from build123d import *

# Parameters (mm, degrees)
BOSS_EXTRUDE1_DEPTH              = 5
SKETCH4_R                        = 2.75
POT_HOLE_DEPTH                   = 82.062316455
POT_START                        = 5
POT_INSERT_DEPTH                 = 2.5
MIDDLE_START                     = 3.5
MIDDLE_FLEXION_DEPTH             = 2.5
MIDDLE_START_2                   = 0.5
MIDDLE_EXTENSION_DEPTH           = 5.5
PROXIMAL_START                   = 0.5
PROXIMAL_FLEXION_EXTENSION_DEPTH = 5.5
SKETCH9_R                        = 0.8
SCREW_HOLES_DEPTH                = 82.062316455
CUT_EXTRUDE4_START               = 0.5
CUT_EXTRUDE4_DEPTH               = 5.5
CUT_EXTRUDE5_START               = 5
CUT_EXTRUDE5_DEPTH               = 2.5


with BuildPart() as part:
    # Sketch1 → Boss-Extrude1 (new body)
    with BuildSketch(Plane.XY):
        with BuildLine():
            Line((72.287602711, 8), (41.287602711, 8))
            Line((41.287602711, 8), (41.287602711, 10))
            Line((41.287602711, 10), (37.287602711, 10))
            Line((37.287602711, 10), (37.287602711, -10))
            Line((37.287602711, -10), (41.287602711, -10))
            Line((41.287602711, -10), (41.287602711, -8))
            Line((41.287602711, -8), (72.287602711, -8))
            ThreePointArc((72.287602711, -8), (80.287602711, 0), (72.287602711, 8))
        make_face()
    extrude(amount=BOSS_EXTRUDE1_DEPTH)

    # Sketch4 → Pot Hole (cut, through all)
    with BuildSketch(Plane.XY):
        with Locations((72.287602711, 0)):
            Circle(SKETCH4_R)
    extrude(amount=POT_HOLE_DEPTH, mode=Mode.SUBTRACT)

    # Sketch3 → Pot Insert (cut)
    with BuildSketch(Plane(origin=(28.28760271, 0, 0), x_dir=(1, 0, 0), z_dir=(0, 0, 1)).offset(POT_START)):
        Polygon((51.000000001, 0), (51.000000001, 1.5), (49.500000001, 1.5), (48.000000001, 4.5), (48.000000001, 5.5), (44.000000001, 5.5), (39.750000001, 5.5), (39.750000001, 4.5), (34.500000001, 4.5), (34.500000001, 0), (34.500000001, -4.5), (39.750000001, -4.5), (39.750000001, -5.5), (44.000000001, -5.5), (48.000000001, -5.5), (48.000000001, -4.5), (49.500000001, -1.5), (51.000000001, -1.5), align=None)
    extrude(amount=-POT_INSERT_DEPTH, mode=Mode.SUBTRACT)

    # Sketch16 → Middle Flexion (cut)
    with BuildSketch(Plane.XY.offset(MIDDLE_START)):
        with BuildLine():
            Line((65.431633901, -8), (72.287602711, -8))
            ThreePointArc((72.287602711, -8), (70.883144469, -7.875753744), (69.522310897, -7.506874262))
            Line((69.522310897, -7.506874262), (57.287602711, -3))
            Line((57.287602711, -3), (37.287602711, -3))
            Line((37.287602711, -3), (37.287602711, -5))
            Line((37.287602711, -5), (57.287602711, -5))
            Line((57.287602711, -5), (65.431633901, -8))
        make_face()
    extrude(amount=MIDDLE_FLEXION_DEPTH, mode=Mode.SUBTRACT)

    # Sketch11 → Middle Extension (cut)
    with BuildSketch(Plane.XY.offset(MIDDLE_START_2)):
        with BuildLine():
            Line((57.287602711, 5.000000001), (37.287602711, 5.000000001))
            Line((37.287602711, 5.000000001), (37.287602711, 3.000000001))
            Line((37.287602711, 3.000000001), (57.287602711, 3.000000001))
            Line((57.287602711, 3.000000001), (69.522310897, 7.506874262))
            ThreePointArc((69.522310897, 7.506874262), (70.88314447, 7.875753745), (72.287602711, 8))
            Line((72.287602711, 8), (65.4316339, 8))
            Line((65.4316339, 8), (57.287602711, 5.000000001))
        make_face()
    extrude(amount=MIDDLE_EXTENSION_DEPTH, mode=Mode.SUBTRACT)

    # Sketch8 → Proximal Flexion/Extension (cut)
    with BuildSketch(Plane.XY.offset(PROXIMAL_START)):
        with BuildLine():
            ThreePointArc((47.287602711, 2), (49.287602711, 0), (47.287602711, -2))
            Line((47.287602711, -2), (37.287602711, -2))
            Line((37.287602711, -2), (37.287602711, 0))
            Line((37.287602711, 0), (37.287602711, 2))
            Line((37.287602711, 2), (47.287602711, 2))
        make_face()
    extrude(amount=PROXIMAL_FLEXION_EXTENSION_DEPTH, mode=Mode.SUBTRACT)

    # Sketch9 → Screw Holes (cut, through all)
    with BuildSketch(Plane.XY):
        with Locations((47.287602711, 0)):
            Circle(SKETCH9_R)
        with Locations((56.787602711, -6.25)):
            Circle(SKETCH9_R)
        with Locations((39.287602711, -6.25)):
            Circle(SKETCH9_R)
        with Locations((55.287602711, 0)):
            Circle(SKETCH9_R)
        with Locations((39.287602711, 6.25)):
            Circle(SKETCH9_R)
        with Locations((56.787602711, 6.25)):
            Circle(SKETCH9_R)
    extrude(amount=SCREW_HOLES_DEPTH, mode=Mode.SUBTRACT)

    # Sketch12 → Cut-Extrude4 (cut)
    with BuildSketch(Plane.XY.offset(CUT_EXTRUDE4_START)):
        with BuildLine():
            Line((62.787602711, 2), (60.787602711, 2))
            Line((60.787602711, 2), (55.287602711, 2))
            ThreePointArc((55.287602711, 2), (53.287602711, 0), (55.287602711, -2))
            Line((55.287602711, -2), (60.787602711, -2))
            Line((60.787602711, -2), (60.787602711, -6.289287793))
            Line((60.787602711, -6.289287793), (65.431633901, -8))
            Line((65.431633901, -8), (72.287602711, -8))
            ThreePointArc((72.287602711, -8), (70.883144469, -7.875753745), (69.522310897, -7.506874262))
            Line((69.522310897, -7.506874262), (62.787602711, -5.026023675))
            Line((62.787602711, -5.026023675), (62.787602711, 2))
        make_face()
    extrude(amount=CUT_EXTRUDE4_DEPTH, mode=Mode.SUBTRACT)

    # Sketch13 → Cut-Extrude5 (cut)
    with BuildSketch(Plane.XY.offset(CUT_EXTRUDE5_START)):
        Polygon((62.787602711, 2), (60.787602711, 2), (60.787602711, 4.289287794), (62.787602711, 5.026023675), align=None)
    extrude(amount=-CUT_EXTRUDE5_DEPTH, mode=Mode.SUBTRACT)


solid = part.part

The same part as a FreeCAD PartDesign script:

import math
import FreeCAD as App
import Part
import Sketcher

V = App.Vector


def add_polygon(sketch, points):
    """Adds a closed chain of lines whose ends are joined by coincident constraints."""
    first, n = sketch.GeometryCount, len(points)
    for a, b in zip(points, points[1:] + points[:1]):
        sketch.addGeometry(Part.LineSegment(App.Vector(*a, 0), App.Vector(*b, 0)), False)
    for i in range(n):
        sketch.addConstraint(Sketcher.Constraint("Coincident", first + i, 2, first + (i + 1) % n, 1))

doc = App.newDocument("Part")
params = doc.addObject("Spreadsheet::Sheet", "Params")
for row, (alias, value) in enumerate([
    ("sketch1_radius", "8 mm"),
    ("sketch1_width", "31 mm"),
    ("sketch1_width2", "4 mm"),
    ("sketch1_height", "2 mm"),
    ("pad1_length", "5 mm"),
    ("sketch2_diameter", "5.5 mm"),
    ("sketch3_height", "1 mm"),
    ("sketch3_height2", "9 mm"),
    ("sketch3_height3", "3 mm"),
    ("sketch3_width", "1.5 mm"),
    ("sketch3_width2", "8.25 mm"),
    ("pocket2_length", "2.5 mm"),
    ("sketch4_radius", "8 mm"),
    ("sketch4_width", "20 mm"),
    ("sketch4_height", "2 mm"),
    ("pocket3_length", "2.5 mm"),
    ("sketch5_radius", "8 mm"),
    ("sketch5_width", "20 mm"),
    ("sketch5_height", "2 mm"),
    ("pocket4_length", "5.5 mm"),
    ("sketch6_radius", "2 mm"),
    ("sketch6_width", "10 mm"),
    ("pocket5_length", "5.5 mm"),
    ("sketch7_diameter", "1.6 mm"),
    ("sketch8_radius", "2 mm"),
    ("sketch8_radius2", "8 mm"),
    ("sketch8_width", "7.5 mm"),
    ("sketch8_width2", "5.5 mm"),
    ("pocket7_length", "5.5 mm"),
    ("sketch9_width", "2 mm"),
    ("pocket8_length", "2.5 mm"),
], start=1):
    params.set(f"A{row}", alias)
    params.set(f"B{row}", "=" + value)
    params.setAlias(f"B{row}", alias)

body = doc.addObject("PartDesign::Body", "Body")

# Sketch on XY plane
sketch1 = body.newObject("Sketcher::SketchObject", "Sketch")
sketch1.AttachmentSupport = (doc.getObject("XY_Plane"), [""])
sketch1.MapMode = "FlatFace"
sketch1.addGeometry(Part.LineSegment(V(72.3, 8, 0), V(41.3, 8, 0)), False)
sketch1.addGeometry(Part.LineSegment(V(41.3, 8, 0), V(41.3, 10, 0)), False)
sketch1.addGeometry(Part.LineSegment(V(41.3, 10, 0), V(37.3, 10, 0)), False)
sketch1.addGeometry(Part.LineSegment(V(37.3, 10, 0), V(37.3, -10, 0)), False)
sketch1.addGeometry(Part.LineSegment(V(37.3, -10, 0), V(41.3, -10, 0)), False)
sketch1.addGeometry(Part.LineSegment(V(41.3, -10, 0), V(41.3, -8, 0)), False)
sketch1.addGeometry(Part.LineSegment(V(41.3, -8, 0), V(72.3, -8, 0)), False)
sketch1.addGeometry(Part.ArcOfCircle(Part.Circle(V(72.3, 0, 0), V(0, 0, 1), 8), math.radians(-90), math.radians(90)), False)
sketch1.addConstraint(Sketcher.Constraint("Coincident", 0, 2, 1, 1))
sketch1.addConstraint(Sketcher.Constraint("Coincident", 1, 2, 2, 1))
sketch1.addConstraint(Sketcher.Constraint("Coincident", 2, 2, 3, 1))
sketch1.addConstraint(Sketcher.Constraint("Coincident", 3, 2, 4, 1))
sketch1.addConstraint(Sketcher.Constraint("Coincident", 4, 2, 5, 1))
sketch1.addConstraint(Sketcher.Constraint("Coincident", 5, 2, 6, 1))
sketch1.addConstraint(Sketcher.Constraint("Tangent", 6, 2, 7, 1))
sketch1.addConstraint(Sketcher.Constraint("Tangent", 7, 2, 0, 1))
sketch1.addConstraint(Sketcher.Constraint("Horizontal", 0))
sketch1.addConstraint(Sketcher.Constraint("Vertical", 1))
sketch1.addConstraint(Sketcher.Constraint("Horizontal", 2))
sketch1.addConstraint(Sketcher.Constraint("Vertical", 3))
sketch1.addConstraint(Sketcher.Constraint("Horizontal", 4))
sketch1.addConstraint(Sketcher.Constraint("Vertical", 5))
sketch1.addConstraint(Sketcher.Constraint("Horizontal", 6))
sketch1.addConstraint(Sketcher.Constraint("Symmetric", 1, 2, 4, 2, -1))
sketch1.addConstraint(Sketcher.Constraint("PointOnObject", 7, 3, -1))
sketch1.addConstraint(Sketcher.Constraint("Radius", 7, 8.0))
sketch1.addConstraint(Sketcher.Constraint("DistanceX", 0, 2, 0, 1, 31.0))
sketch1.addConstraint(Sketcher.Constraint("DistanceX", 2, 2, 2, 1, 4.0))
sketch1.addConstraint(Sketcher.Constraint("DistanceY", 1, 1, 1, 2, 2.0))
sketch1.addConstraint(Sketcher.Constraint("DistanceX", -1, 1, 7, 3, 72.287603))
sketch1.setExpression("Constraints[17]", "Params.sketch1_radius")
sketch1.setExpression("Constraints[18]", "Params.sketch1_width")
sketch1.setExpression("Constraints[19]", "Params.sketch1_width2")
sketch1.setExpression("Constraints[20]", "Params.sketch1_height")
pad1 = body.newObject("PartDesign::Pad", "Pad")
pad1.Profile = sketch1
pad1.setExpression("Length", "Params.pad1_length")

# Sketch on XY plane
sketch2 = body.newObject("Sketcher::SketchObject", "Sketch001")
sketch2.AttachmentSupport = (doc.getObject("XY_Plane"), [""])
sketch2.MapMode = "FlatFace"
sketch2.addGeometry(Part.Circle(V(72.3, 0, 0), V(0, 0, 1), 2.8), False)
sketch2.addConstraint(Sketcher.Constraint("PointOnObject", 0, 3, -1))
sketch2.addConstraint(Sketcher.Constraint("Diameter", 0, 5.5))
sketch2.addConstraint(Sketcher.Constraint("DistanceX", -1, 1, 0, 3, 72.287603))
sketch2.setExpression("Constraints[1]", "Params.sketch2_diameter")
pocket1 = body.newObject("PartDesign::Pocket", "Pocket")
pocket1.Profile = sketch2
pocket1.Type = "ThroughAll"
pocket1.Reversed = True

# Sketch on XY plane
sketch3 = body.newObject("Sketcher::SketchObject", "Sketch002")
sketch3.AttachmentSupport = (doc.getObject("XY_Plane"), [""])
sketch3.MapMode = "FlatFace"
sketch3.AttachmentOffset = App.Placement(V(0, 0, 5), App.Rotation())
add_polygon(sketch3, [(79.3, 1.5), (77.8, 1.5), (76.3, 4.5), (76.3, 5.5), (68, 5.5), (68, 4.5), (62.8, 4.5), (62.8, -4.5), (68, -4.5), (68, -5.5), (76.3, -5.5), (76.3, -4.5), (77.8, -1.5), (79.3, -1.5)])  # lines 0-13
sketch3.addConstraint(Sketcher.Constraint("Horizontal", 0))
sketch3.addConstraint(Sketcher.Constraint("Vertical", 2))
sketch3.addConstraint(Sketcher.Constraint("Horizontal", 3))
sketch3.addConstraint(Sketcher.Constraint("Vertical", 4))
sketch3.addConstraint(Sketcher.Constraint("Horizontal", 5))
sketch3.addConstraint(Sketcher.Constraint("Vertical", 6))
sketch3.addConstraint(Sketcher.Constraint("Horizontal", 7))
sketch3.addConstraint(Sketcher.Constraint("Vertical", 8))
sketch3.addConstraint(Sketcher.Constraint("Horizontal", 9))
sketch3.addConstraint(Sketcher.Constraint("Vertical", 10))
sketch3.addConstraint(Sketcher.Constraint("Horizontal", 12))
sketch3.addConstraint(Sketcher.Constraint("Vertical", 13))
sketch3.addConstraint(Sketcher.Constraint("Symmetric", 4, 2, 7, 2, -1))
sketch3.addConstraint(Sketcher.Constraint("Symmetric", 2, 2, 9, 2, -1))
sketch3.addConstraint(Sketcher.Constraint("Symmetric", 0, 2, 11, 2, -1))
sketch3.addConstraint(Sketcher.Constraint("Horizontal", 1, 2, 4, 2))
sketch3.addConstraint(Sketcher.Constraint("Horizontal", 7, 2, 10, 2))
sketch3.addConstraint(Sketcher.Constraint("DistanceY", 2, 1, 2, 2, 1.0))
sketch3.addConstraint(Sketcher.Constraint("DistanceY", 6, 2, 6, 1, 9.0))
sketch3.addConstraint(Sketcher.Constraint("DistanceY", 13, 1, 13, 2, 3.0))
sketch3.addConstraint(Sketcher.Constraint("DistanceX", 0, 2, 0, 1, 1.5))
sketch3.addConstraint(Sketcher.Constraint("DistanceX", 5, 2, 0, 2, 15.0))
sketch3.addConstraint(Sketcher.Constraint("DistanceX", 10, 2, 12, 2, 3.0))
sketch3.addConstraint(Sketcher.Constraint("DistanceX", 3, 2, 3, 1, 8.25))
sketch3.addConstraint(Sketcher.Constraint("DistanceX", -1, 1, 0, 2, 77.787603))
sketch3.setExpression("Constraints[31]", "Params.sketch3_height")
sketch3.setExpression("Constraints[32]", "Params.sketch3_height2")
sketch3.setExpression("Constraints[33]", "Params.sketch3_height3")
sketch3.setExpression("Constraints[34]", "Params.sketch3_width")
sketch3.setExpression("Constraints[37]", "Params.sketch3_width2")
pocket2 = body.newObject("PartDesign::Pocket", "Pocket001")
pocket2.Profile = sketch3
pocket2.setExpression("Length", "Params.pocket2_length")

# Sketch on XY plane
sketch4 = body.newObject("Sketcher::SketchObject", "Sketch003")
sketch4.AttachmentSupport = (doc.getObject("XY_Plane"), [""])
sketch4.MapMode = "FlatFace"
sketch4.AttachmentOffset = App.Placement(V(0, 0, 3.5), App.Rotation())
sketch4.addGeometry(Part.LineSegment(V(65.4, -8, 0), V(72.3, -8, 0)), False)
sketch4.addGeometry(Part.ArcOfCircle(Part.Circle(V(72.3, 0, 0), V(0, 0, 1), 8), math.radians(-110), math.radians(-90)), False)
sketch4.addGeometry(Part.LineSegment(V(69.5, -7.5, 0), V(57.3, -3, 0)), False)
sketch4.addGeometry(Part.LineSegment(V(57.3, -3, 0), V(37.3, -3, 0)), False)
sketch4.addGeometry(Part.LineSegment(V(37.3, -3, 0), V(37.3, -5, 0)), False)
sketch4.addGeometry(Part.LineSegment(V(37.3, -5, 0), V(57.3, -5, 0)), False)
sketch4.addGeometry(Part.LineSegment(V(57.3, -5, 0), V(65.4, -8, 0)), False)
sketch4.addConstraint(Sketcher.Constraint("Tangent", 0, 2, 1, 2))
sketch4.addConstraint(Sketcher.Constraint("Tangent", 1, 1, 2, 1))
sketch4.addConstraint(Sketcher.Constraint("Coincident", 2, 2, 3, 1))
sketch4.addConstraint(Sketcher.Constraint("Coincident", 3, 2, 4, 1))
sketch4.addConstraint(Sketcher.Constraint("Coincident", 4, 2, 5, 1))
sketch4.addConstraint(Sketcher.Constraint("Coincident", 5, 2, 6, 1))
sketch4.addConstraint(Sketcher.Constraint("Coincident", 6, 2, 0, 1))
sketch4.addConstraint(Sketcher.Constraint("Horizontal", 0))
sketch4.addConstraint(Sketcher.Constraint("Horizontal", 3))
sketch4.addConstraint(Sketcher.Constraint("Vertical", 4))
sketch4.addConstraint(Sketcher.Constraint("Horizontal", 5))
sketch4.addConstraint(Sketcher.Constraint("PointOnObject", 1, 3, -1))
sketch4.addConstraint(Sketcher.Constraint("Parallel", 2, 6))
sketch4.addConstraint(Sketcher.Constraint("Vertical", 2, 2, 5, 2))
sketch4.addConstraint(Sketcher.Constraint("Radius", 1, 8.0))
sketch4.addConstraint(Sketcher.Constraint("DistanceX", 3, 2, 3, 1, 20.0))
sketch4.addConstraint(Sketcher.Constraint("DistanceY", 4, 2, 4, 1, 2.0))
sketch4.addConstraint(Sketcher.Constraint("DistanceY", 2, 2, -1, 1, 3.0))
sketch4.addConstraint(Sketcher.Constraint("DistanceX", 2, 2, 1, 3, 15.0))
sketch4.addConstraint(Sketcher.Constraint("DistanceX", -1, 1, 1, 1, 69.522311))
sketch4.setExpression("Constraints[14]", "Params.sketch4_radius")
sketch4.setExpression("Constraints[15]", "Params.sketch4_width")
sketch4.setExpression("Constraints[16]", "Params.sketch4_height")
pocket3 = body.newObject("PartDesign::Pocket", "Pocket002")
pocket3.Profile = sketch4
pocket3.setExpression("Length", "Params.pocket3_length")
pocket3.Reversed = True

# Sketch on XY plane
sketch5 = body.newObject("Sketcher::SketchObject", "Sketch004")
sketch5.AttachmentSupport = (doc.getObject("XY_Plane"), [""])
sketch5.MapMode = "FlatFace"
sketch5.AttachmentOffset = App.Placement(V(0, 0, 0.5), App.Rotation())
sketch5.addGeometry(Part.LineSegment(V(57.3, 5, 0), V(37.3, 5, 0)), False)
sketch5.addGeometry(Part.LineSegment(V(37.3, 5, 0), V(37.3, 3, 0)), False)
sketch5.addGeometry(Part.LineSegment(V(37.3, 3, 0), V(57.3, 3, 0)), False)
sketch5.addGeometry(Part.LineSegment(V(57.3, 3, 0), V(69.5, 7.5, 0)), False)
sketch5.addGeometry(Part.ArcOfCircle(Part.Circle(V(72.3, 0, 0), V(0, 0, 1), 8), math.radians(90), math.radians(110)), False)
sketch5.addGeometry(Part.LineSegment(V(72.3, 8, 0), V(65.4, 8, 0)), False)
sketch5.addGeometry(Part.LineSegment(V(65.4, 8, 0), V(57.3, 5, 0)), False)
sketch5.addConstraint(Sketcher.Constraint("Coincident", 0, 2, 1, 1))
sketch5.addConstraint(Sketcher.Constraint("Coincident", 1, 2, 2, 1))
sketch5.addConstraint(Sketcher.Constraint("Coincident", 2, 2, 3, 1))
sketch5.addConstraint(Sketcher.Constraint("Tangent", 3, 2, 4, 2))
sketch5.addConstraint(Sketcher.Constraint("Tangent", 4, 1, 5, 1))
sketch5.addConstraint(Sketcher.Constraint("Coincident", 5, 2, 6, 1))
sketch5.addConstraint(Sketcher.Constraint("Coincident", 6, 2, 0, 1))
sketch5.addConstraint(Sketcher.Constraint("Horizontal", 0))
sketch5.addConstraint(Sketcher.Constraint("Vertical", 1))
sketch5.addConstraint(Sketcher.Constraint("Horizontal", 2))
sketch5.addConstraint(Sketcher.Constraint("Horizontal", 5))
sketch5.addConstraint(Sketcher.Constraint("PointOnObject", 4, 3, -1))
sketch5.addConstraint(Sketcher.Constraint("Parallel", 3, 6))
sketch5.addConstraint(Sketcher.Constraint("Vertical", 2, 2, 6, 2))
sketch5.addConstraint(Sketcher.Constraint("Radius", 4, 8.0))
sketch5.addConstraint(Sketcher.Constraint("DistanceX", 0, 2, 0, 1, 20.0))
sketch5.addConstraint(Sketcher.Constraint("DistanceY", 1, 2, 1, 1, 2.0))
sketch5.addConstraint(Sketcher.Constraint("DistanceY", -1, 1, 0, 2, 5.0))
sketch5.addConstraint(Sketcher.Constraint("DistanceX", 0, 2, 4, 3, 35.0))
sketch5.addConstraint(Sketcher.Constraint("DistanceX", -1, 1, 3, 2, 69.522311))
sketch5.setExpression("Constraints[14]", "Params.sketch5_radius")
sketch5.setExpression("Constraints[15]", "Params.sketch5_width")
sketch5.setExpression("Constraints[16]", "Params.sketch5_height")
pocket4 = body.newObject("PartDesign::Pocket", "Pocket003")
pocket4.Profile = sketch5
pocket4.setExpression("Length", "Params.pocket4_length")
pocket4.Reversed = True

# Sketch on XY plane
sketch6 = body.newObject("Sketcher::SketchObject", "Sketch005")
sketch6.AttachmentSupport = (doc.getObject("XY_Plane"), [""])
sketch6.MapMode = "FlatFace"
sketch6.AttachmentOffset = App.Placement(V(0, 0, 0.5), App.Rotation())
sketch6.addGeometry(Part.ArcOfCircle(Part.Circle(V(47.3, 0, 0), V(0, 0, 1), 2), math.radians(-90), math.radians(90)), False)
sketch6.addGeometry(Part.LineSegment(V(47.3, 2, 0), V(37.3, 2, 0)), False)
sketch6.addGeometry(Part.LineSegment(V(37.3, 2, 0), V(37.3, -2, 0)), False)
sketch6.addGeometry(Part.LineSegment(V(37.3, -2, 0), V(47.3, -2, 0)), False)
sketch6.addConstraint(Sketcher.Constraint("Tangent", 0, 2, 1, 1))
sketch6.addConstraint(Sketcher.Constraint("Coincident", 1, 2, 2, 1))
sketch6.addConstraint(Sketcher.Constraint("Coincident", 2, 2, 3, 1))
sketch6.addConstraint(Sketcher.Constraint("Tangent", 3, 2, 0, 1))
sketch6.addConstraint(Sketcher.Constraint("Horizontal", 1))
sketch6.addConstraint(Sketcher.Constraint("Vertical", 2))
sketch6.addConstraint(Sketcher.Constraint("Horizontal", 3))
sketch6.addConstraint(Sketcher.Constraint("PointOnObject", 0, 3, -1))
sketch6.addConstraint(Sketcher.Constraint("Radius", 0, 2.0))
sketch6.addConstraint(Sketcher.Constraint("DistanceX", 1, 2, 1, 1, 10.0))
sketch6.addConstraint(Sketcher.Constraint("DistanceX", -1, 1, 0, 3, 47.287603))
sketch6.setExpression("Constraints[8]", "Params.sketch6_radius")
sketch6.setExpression("Constraints[9]", "Params.sketch6_width")
pocket5 = body.newObject("PartDesign::Pocket", "Pocket004")
pocket5.Profile = sketch6
pocket5.setExpression("Length", "Params.pocket5_length")
pocket5.Reversed = True

# Sketch on XY plane
sketch7 = body.newObject("Sketcher::SketchObject", "Sketch006")
sketch7.AttachmentSupport = (doc.getObject("XY_Plane"), [""])
sketch7.MapMode = "FlatFace"
sketch7.addGeometry(Part.Circle(V(47.3, 0, 0), V(0, 0, 1), 0.8), False)
sketch7.addGeometry(Part.Circle(V(56.8, -6.2, 0), V(0, 0, 1), 0.8), False)
sketch7.addGeometry(Part.Circle(V(39.3, -6.2, 0), V(0, 0, 1), 0.8), False)
sketch7.addGeometry(Part.Circle(V(55.3, 0, 0), V(0, 0, 1), 0.8), False)
sketch7.addGeometry(Part.Circle(V(39.3, 6.2, 0), V(0, 0, 1), 0.8), False)
sketch7.addGeometry(Part.Circle(V(56.8, 6.2, 0), V(0, 0, 1), 0.8), False)
sketch7.addConstraint(Sketcher.Constraint("Equal", 0, 1))
sketch7.addConstraint(Sketcher.Constraint("Equal", 1, 2))
sketch7.addConstraint(Sketcher.Constraint("Equal", 2, 3))
sketch7.addConstraint(Sketcher.Constraint("Equal", 3, 4))
sketch7.addConstraint(Sketcher.Constraint("Equal", 4, 5))
sketch7.addConstraint(Sketcher.Constraint("Symmetric", 2, 3, 4, 3, -1))
sketch7.addConstraint(Sketcher.Constraint("Symmetric", 1, 3, 5, 3, -1))
sketch7.addConstraint(Sketcher.Constraint("PointOnObject", 0, 3, -1))
sketch7.addConstraint(Sketcher.Constraint("PointOnObject", 3, 3, -1))
sketch7.addConstraint(Sketcher.Constraint("Horizontal", 1, 3, 2, 3))
sketch7.addConstraint(Sketcher.Constraint("Diameter", 0, 1.6))
sketch7.addConstraint(Sketcher.Constraint("DistanceX", 2, 3, 0, 3, 8.0))
sketch7.addConstraint(Sketcher.Constraint("DistanceX", 0, 3, 3, 3, 8.0))
sketch7.addConstraint(Sketcher.Constraint("DistanceX", 0, 3, 1, 3, 9.5))
sketch7.addConstraint(Sketcher.Constraint("DistanceY", 2, 3, 4, 3, 12.5))
sketch7.addConstraint(Sketcher.Constraint("DistanceX", -1, 1, 0, 3, 47.287603))
sketch7.setExpression("Constraints[10]", "Params.sketch7_diameter")
pocket6 = body.newObject("PartDesign::Pocket", "Pocket005")
pocket6.Profile = sketch7
pocket6.Type = "ThroughAll"
pocket6.Reversed = True

# Sketch on XY plane
sketch8 = body.newObject("Sketcher::SketchObject", "Sketch007")
sketch8.AttachmentSupport = (doc.getObject("XY_Plane"), [""])
sketch8.MapMode = "FlatFace"
sketch8.AttachmentOffset = App.Placement(V(0, 0, 0.5), App.Rotation())
sketch8.addGeometry(Part.LineSegment(V(62.8, 2, 0), V(55.3, 2, 0)), False)
sketch8.addGeometry(Part.ArcOfCircle(Part.Circle(V(55.3, 0, 0), V(0, 0, 1), 2), math.radians(90), math.radians(270)), False)
sketch8.addGeometry(Part.LineSegment(V(55.3, -2, 0), V(60.8, -2, 0)), False)
sketch8.addGeometry(Part.LineSegment(V(60.8, -2, 0), V(60.8, -6.3, 0)), False)
sketch8.addGeometry(Part.LineSegment(V(60.8, -6.3, 0), V(65.4, -8, 0)), False)
sketch8.addGeometry(Part.LineSegment(V(65.4, -8, 0), V(72.3, -8, 0)), False)
sketch8.addGeometry(Part.ArcOfCircle(Part.Circle(V(72.3, 0, 0), V(0, 0, 1), 8), math.radians(-110), math.radians(-90)), False)
sketch8.addGeometry(Part.LineSegment(V(69.5, -7.5, 0), V(62.8, -5, 0)), False)
sketch8.addGeometry(Part.LineSegment(V(62.8, -5, 0), V(62.8, 2, 0)), False)
sketch8.addConstraint(Sketcher.Constraint("Tangent", 0, 2, 1, 1))
sketch8.addConstraint(Sketcher.Constraint("Tangent", 1, 2, 2, 1))
sketch8.addConstraint(Sketcher.Constraint("Coincident", 2, 2, 3, 1))
sketch8.addConstraint(Sketcher.Constraint("Coincident", 3, 2, 4, 1))
sketch8.addConstraint(Sketcher.Constraint("Coincident", 4, 2, 5, 1))
sketch8.addConstraint(Sketcher.Constraint("Tangent", 5, 2, 6, 2))
sketch8.addConstraint(Sketcher.Constraint("Tangent", 6, 1, 7, 1))
sketch8.addConstraint(Sketcher.Constraint("Coincident", 7, 2, 8, 1))
sketch8.addConstraint(Sketcher.Constraint("Coincident", 8, 2, 0, 1))
sketch8.addConstraint(Sketcher.Constraint("Horizontal", 0))
sketch8.addConstraint(Sketcher.Constraint("Horizontal", 2))
sketch8.addConstraint(Sketcher.Constraint("Vertical", 3))
sketch8.addConstraint(Sketcher.Constraint("Horizontal", 5))
sketch8.addConstraint(Sketcher.Constraint("Vertical", 8))
sketch8.addConstraint(Sketcher.Constraint("PointOnObject", 1, 3, -1))
sketch8.addConstraint(Sketcher.Constraint("PointOnObject", 6, 3, -1))
sketch8.addConstraint(Sketcher.Constraint("Parallel", 4, 7))
sketch8.addConstraint(Sketcher.Constraint("Radius", 1, 2.0))
sketch8.addConstraint(Sketcher.Constraint("Radius", 6, 8.0))
sketch8.addConstraint(Sketcher.Constraint("DistanceX", 0, 2, 0, 1, 7.5))
sketch8.addConstraint(Sketcher.Constraint("DistanceX", 2, 1, 2, 2, 5.5))
sketch8.addConstraint(Sketcher.Constraint("DistanceX", 1, 3, 6, 3, 17.0))
sketch8.addConstraint(Sketcher.Constraint("DistanceX", 5, 1, 5, 2, 6.855969))
sketch8.addConstraint(Sketcher.Constraint("Distance", 7, 7.17711))
sketch8.addConstraint(Sketcher.Constraint("DistanceX", -1, 1, 6, 1, 69.522311))
sketch8.setExpression("Constraints[17]", "Params.sketch8_radius")
sketch8.setExpression("Constraints[18]", "Params.sketch8_radius2")
sketch8.setExpression("Constraints[19]", "Params.sketch8_width")
sketch8.setExpression("Constraints[20]", "Params.sketch8_width2")
pocket7 = body.newObject("PartDesign::Pocket", "Pocket006")
pocket7.Profile = sketch8
pocket7.setExpression("Length", "Params.pocket7_length")
pocket7.Reversed = True

# Sketch on XY plane
sketch9 = body.newObject("Sketcher::SketchObject", "Sketch008")
sketch9.AttachmentSupport = (doc.getObject("XY_Plane"), [""])
sketch9.MapMode = "FlatFace"
sketch9.AttachmentOffset = App.Placement(V(0, 0, 5), App.Rotation())
add_polygon(sketch9, [(60.8, 2), (62.8, 2), (62.8, 5), (60.8, 4.3)])  # lines 0-3
sketch9.addConstraint(Sketcher.Constraint("Horizontal", 0))
sketch9.addConstraint(Sketcher.Constraint("Vertical", 1))
sketch9.addConstraint(Sketcher.Constraint("Vertical", 3))
sketch9.addConstraint(Sketcher.Constraint("DistanceX", 0, 1, 0, 2, 2.0))
sketch9.addConstraint(Sketcher.Constraint("DistanceY", -1, 1, 0, 2, 2.0))
sketch9.addConstraint(Sketcher.Constraint("Distance", 2, 2.13138))
sketch9.addConstraint(Sketcher.Constraint("DistanceY", 1, 1, 1, 2, 3.026024))
sketch9.addConstraint(Sketcher.Constraint("DistanceX", -1, 1, 0, 2, 62.787603))
sketch9.setExpression("Constraints[7]", "Params.sketch9_width")
pocket8 = body.newObject("PartDesign::Pocket", "Pocket007")
pocket8.Profile = sketch9
pocket8.setExpression("Length", "Params.pocket8_length")

doc.recompute()
